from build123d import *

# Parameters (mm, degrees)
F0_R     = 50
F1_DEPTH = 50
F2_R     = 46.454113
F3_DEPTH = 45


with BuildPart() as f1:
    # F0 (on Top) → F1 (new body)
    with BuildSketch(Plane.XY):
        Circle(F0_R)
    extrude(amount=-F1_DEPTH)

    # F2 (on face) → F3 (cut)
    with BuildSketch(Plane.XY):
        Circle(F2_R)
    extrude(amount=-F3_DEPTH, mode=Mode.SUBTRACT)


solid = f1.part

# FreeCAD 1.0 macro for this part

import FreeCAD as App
import Part
import Sketcher
Q = App.Units.Quantity

doc = App.newDocument("Part")
body = doc.addObject("PartDesign::Body", "Body")

# Sketch on XY plane
sketch1 = body.newObject("Sketcher::SketchObject", "Sketch")
sketch1.AttachmentSupport = (doc.getObject("XY_Plane"), [""])
sketch1.MapMode = "FlatFace"
sketch1.addGeometry(Part.Circle(App.Vector(0, 0, 0), App.Vector(0, 0, 1), 50), False)
sketch1.addConstraint([
    Sketcher.Constraint("Coincident", 0, 3, -1, 1),
    Sketcher.Constraint("Diameter", 0, Q("100 mm")),
])
pad1 = body.newObject("PartDesign::Pad", "Pad")
pad1.Profile = sketch1
pad1.Length = 50
pad1.Reversed = True

# Sketch on XY plane
sketch2 = body.newObject("Sketcher::SketchObject", "Sketch001")
sketch2.AttachmentSupport = (doc.getObject("XY_Plane"), [""])
sketch2.MapMode = "FlatFace"
sketch2.addGeometry(Part.Circle(App.Vector(0, 0, 0), App.Vector(0, 0, 1), 46), False)
sketch2.addConstraint([
    Sketcher.Constraint("Coincident", 0, 3, -1, 1),
    Sketcher.Constraint("Diameter", 0, Q("92.908226 mm")),
])
pocket1 = body.newObject("PartDesign::Pocket", "Pocket")
pocket1.Profile = sketch2
pocket1.Length = 45

doc.recompute()
